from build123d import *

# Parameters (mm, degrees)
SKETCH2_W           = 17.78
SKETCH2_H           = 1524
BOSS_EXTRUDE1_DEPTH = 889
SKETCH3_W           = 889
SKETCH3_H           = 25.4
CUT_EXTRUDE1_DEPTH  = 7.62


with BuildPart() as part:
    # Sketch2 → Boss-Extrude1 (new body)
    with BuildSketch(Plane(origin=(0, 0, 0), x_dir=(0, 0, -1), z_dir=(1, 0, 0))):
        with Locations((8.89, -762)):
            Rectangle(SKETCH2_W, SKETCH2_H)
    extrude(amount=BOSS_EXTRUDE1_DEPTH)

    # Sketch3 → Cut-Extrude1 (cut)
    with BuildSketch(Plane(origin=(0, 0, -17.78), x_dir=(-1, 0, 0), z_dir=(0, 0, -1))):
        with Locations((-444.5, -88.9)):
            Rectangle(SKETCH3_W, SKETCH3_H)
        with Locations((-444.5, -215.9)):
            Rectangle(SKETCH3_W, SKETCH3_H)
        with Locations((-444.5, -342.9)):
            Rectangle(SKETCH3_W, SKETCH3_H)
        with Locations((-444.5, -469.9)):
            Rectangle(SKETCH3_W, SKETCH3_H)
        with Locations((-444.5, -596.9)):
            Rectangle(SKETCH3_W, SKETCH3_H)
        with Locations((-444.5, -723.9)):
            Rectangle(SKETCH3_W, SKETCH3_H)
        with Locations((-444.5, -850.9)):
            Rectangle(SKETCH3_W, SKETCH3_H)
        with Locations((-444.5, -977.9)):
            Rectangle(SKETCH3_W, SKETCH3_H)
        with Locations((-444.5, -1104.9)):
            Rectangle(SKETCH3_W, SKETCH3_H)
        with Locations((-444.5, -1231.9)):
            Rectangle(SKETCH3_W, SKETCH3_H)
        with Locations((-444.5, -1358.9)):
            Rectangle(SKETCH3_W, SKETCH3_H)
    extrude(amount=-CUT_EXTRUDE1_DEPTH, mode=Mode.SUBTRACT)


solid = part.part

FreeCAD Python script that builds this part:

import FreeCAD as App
import Part
import Sketcher
Q = App.Units.Quantity


def add_polygon(sketch, points):
    """Adds a closed chain of lines whose ends are joined by coincident constraints."""
    first, n = sketch.GeometryCount, len(points)
    for a, b in zip(points, points[1:] + points[:1]):
        sketch.addGeometry(Part.LineSegment(App.Vector(*a, 0), App.Vector(*b, 0)), False)
    for i in range(n):
        sketch.addConstraint(Sketcher.Constraint("Coincident", first + i, 2, first + (i + 1) % n, 1))

doc = App.newDocument("Part")
body = doc.addObject("PartDesign::Body", "Body")

# Sketch on YZ plane
sketch1 = doc.addObject("Sketcher::SketchObject", "Sketch")
body.addObject(sketch1)
sketch1.AttachmentSupport = (doc.YZ_Plane, [""])
sketch1.MapMode = "FlatFace"
add_polygon(sketch1, [(0, 0), (-1524, 0), (-1524, -18), (0, -18)])  # lines 0-3
sketch1.addConstraint([
    Sketcher.Constraint("Horizontal", 0),
    Sketcher.Constraint("Vertical", 1),
    Sketcher.Constraint("Horizontal", 2),
    Sketcher.Constraint("Vertical", 3),
    Sketcher.Constraint("Coincident", 3, 2, -1, 1),
    Sketcher.Constraint("DistanceX", 0, 2, 0, 1, Q("60 in")),
    Sketcher.Constraint("DistanceY", 1, 2, 1, 1, Q("0.7 in")),
])
pad1 = doc.addObject("PartDesign::Pad", "Pad")
body.addObject(pad1)
pad1.Profile = sketch1
pad1.Length = Q("35 in")

# Sketch on XY plane
sketch2 = doc.addObject("Sketcher::SketchObject", "Sketch001")
body.addObject(sketch2)
sketch2.AttachmentSupport = (doc.XY_Plane, [""])
sketch2.MapMode = "FlatFace"
sketch2.AttachmentOffset = App.Placement(App.Vector(0, 0, -0.7 * 25.4), App.Rotation())
add_polygon(sketch2, [(889, -76), (889, -102), (0, -102), (0, -76)])  # lines 0-3
add_polygon(sketch2, [(889, -203), (889, -229), (0, -229), (0, -203)])  # lines 4-7
add_polygon(sketch2, [(889, -330), (889, -356), (0, -356), (0, -330)])  # lines 8-11
add_polygon(sketch2, [(889, -457), (889, -483), (0, -483), (0, -457)])  # lines 12-15
add_polygon(sketch2, [(889, -584), (889, -610), (0, -610), (0, -584)])  # lines 16-19
add_polygon(sketch2, [(889, -711), (889, -737), (0, -737), (0, -711)])  # lines 20-23
add_polygon(sketch2, [(889, -838), (889, -864), (0, -864), (0, -838)])  # lines 24-27
add_polygon(sketch2, [(889, -965), (889, -991), (0, -991), (0, -965)])  # lines 28-31
add_polygon(sketch2, [(889, -1092), (889, -1118), (0, -1118), (0, -1092)])  # lines 32-35
add_polygon(sketch2, [(889, -1219), (889, -1245), (0, -1245), (0, -1219)])  # lines 36-39
add_polygon(sketch2, [(889, -1346), (889, -1372), (0, -1372), (0, -1346)])  # lines 40-43
sketch2.addConstraint([
    Sketcher.Constraint("Vertical", 0),
    Sketcher.Constraint("Horizontal", 1),
    Sketcher.Constraint("Vertical", 2),
    Sketcher.Constraint("Horizontal", 3),
    Sketcher.Constraint("Vertical", 4),
    Sketcher.Constraint("Horizontal", 5),
    Sketcher.Constraint("Vertical", 6),
    Sketcher.Constraint("Horizontal", 7),
    Sketcher.Constraint("Vertical", 8),
    Sketcher.Constraint("Horizontal", 9),
    Sketcher.Constraint("Vertical", 10),
    Sketcher.Constraint("Horizontal", 11),
    Sketcher.Constraint("Vertical", 12),
    Sketcher.Constraint("Horizontal", 13),
    Sketcher.Constraint("Vertical", 14),
    Sketcher.Constraint("Horizontal", 15),
    Sketcher.Constraint("Vertical", 16),
    Sketcher.Constraint("Horizontal", 17),
    Sketcher.Constraint("Vertical", 18),
    Sketcher.Constraint("Horizontal", 19),
    Sketcher.Constraint("Vertical", 20),
    Sketcher.Constraint("Horizontal", 21),
    Sketcher.Constraint("Vertical", 22),
    Sketcher.Constraint("Horizontal", 23),
    Sketcher.Constraint("Vertical", 24),
    Sketcher.Constraint("Horizontal", 25),
    Sketcher.Constraint("Vertical", 26),
    Sketcher.Constraint("Horizontal", 27),
    Sketcher.Constraint("Vertical", 28),
    Sketcher.Constraint("Horizontal", 29),
    Sketcher.Constraint("Vertical", 30),
    Sketcher.Constraint("Horizontal", 31),
    Sketcher.Constraint("Vertical", 32),
    Sketcher.Constraint("Horizontal", 33),
    Sketcher.Constraint("Vertical", 34),
    Sketcher.Constraint("Horizontal", 35),
    Sketcher.Constraint("Vertical", 36),
    Sketcher.Constraint("Horizontal", 37),
    Sketcher.Constraint("Vertical", 38),
    Sketcher.Constraint("Horizontal", 39),
    Sketcher.Constraint("Vertical", 40),
    Sketcher.Constraint("Horizontal", 41),
    Sketcher.Constraint("Vertical", 42),
    Sketcher.Constraint("Horizontal", 43),
    Sketcher.Constraint("PointOnObject", 1, 2, -2),
    Sketcher.Constraint("PointOnObject", 5, 2, -2),
    Sketcher.Constraint("PointOnObject", 9, 2, -2),
    Sketcher.Constraint("PointOnObject", 13, 2, -2),
    Sketcher.Constraint("PointOnObject", 17, 2, -2),
    Sketcher.Constraint("PointOnObject", 21, 2, -2),
    Sketcher.Constraint("PointOnObject", 25, 2, -2),
    Sketcher.Constraint("PointOnObject", 29, 2, -2),
    Sketcher.Constraint("PointOnObject", 33, 2, -2),
    Sketcher.Constraint("PointOnObject", 37, 2, -2),
    Sketcher.Constraint("PointOnObject", 41, 2, -2),
    Sketcher.Constraint("Vertical", 3, 2, 4, 2),
    Sketcher.Constraint("Vertical", 7, 2, 8, 2),
    Sketcher.Constraint("Vertical", 11, 2, 12, 2),
    Sketcher.Constraint("Vertical", 15, 2, 16, 2),
    Sketcher.Constraint("Vertical", 19, 2, 20, 2),
    Sketcher.Constraint("Vertical", 23, 2, 24, 2),
    Sketcher.Constraint("Vertical", 27, 2, 28, 2),
    Sketcher.Constraint("Vertical", 31, 2, 32, 2),
    Sketcher.Constraint("Vertical", 35, 2, 36, 2),
    Sketcher.Constraint("Vertical", 39, 2, 40, 2),
    Sketcher.Constraint("Equal", 2, 4),
    Sketcher.Constraint("Equal", 6, 8),
    Sketcher.Constraint("Equal", 10, 12),
    Sketcher.Constraint("Equal", 14, 16),
    Sketcher.Constraint("Equal", 18, 20),
    Sketcher.Constraint("Equal", 22, 24),
    Sketcher.Constraint("Equal", 26, 28),
    Sketcher.Constraint("Equal", 30, 32),
    Sketcher.Constraint("Equal", 34, 36),
    Sketcher.Constraint("Equal", 38, 40),
    Sketcher.Constraint("DistanceX", 1, 2, 1, 1, Q("35 in")),
    Sketcher.Constraint("DistanceY", 0, 2, 0, 1, Q("1 in")),
    Sketcher.Constraint("DistanceY", 0, 2, -1, 1, Q("4 in")),
    Sketcher.Constraint("DistanceY", 4, 2, -1, 1, Q("9 in")),
    Sketcher.Constraint("DistanceY", 8, 2, -1, 1, Q("14 in")),
    Sketcher.Constraint("DistanceY", 12, 2, -1, 1, Q("19 in")),
    Sketcher.Constraint("DistanceY", 16, 2, -1, 1, Q("24 in")),
    Sketcher.Constraint("DistanceY", 20, 2, -1, 1, Q("29 in")),
    Sketcher.Constraint("DistanceY", 24, 2, -1, 1, Q("34 in")),
    Sketcher.Constraint("DistanceY", 28, 2, -1, 1, Q("39 in")),
    Sketcher.Constraint("DistanceY", 32, 2, -1, 1, Q("44 in")),
    Sketcher.Constraint("DistanceY", 36, 2, -1, 1, Q("49 in")),
    Sketcher.Constraint("DistanceY", 40, 2, -1, 1, Q("54 in")),
])
pocket1 = doc.addObject("PartDesign::Pocket", "Pocket")
body.addObject(pocket1)
pocket1.Profile = sketch2
pocket1.Length = Q("0.3 in")
pocket1.Reversed = True

doc.recompute()
